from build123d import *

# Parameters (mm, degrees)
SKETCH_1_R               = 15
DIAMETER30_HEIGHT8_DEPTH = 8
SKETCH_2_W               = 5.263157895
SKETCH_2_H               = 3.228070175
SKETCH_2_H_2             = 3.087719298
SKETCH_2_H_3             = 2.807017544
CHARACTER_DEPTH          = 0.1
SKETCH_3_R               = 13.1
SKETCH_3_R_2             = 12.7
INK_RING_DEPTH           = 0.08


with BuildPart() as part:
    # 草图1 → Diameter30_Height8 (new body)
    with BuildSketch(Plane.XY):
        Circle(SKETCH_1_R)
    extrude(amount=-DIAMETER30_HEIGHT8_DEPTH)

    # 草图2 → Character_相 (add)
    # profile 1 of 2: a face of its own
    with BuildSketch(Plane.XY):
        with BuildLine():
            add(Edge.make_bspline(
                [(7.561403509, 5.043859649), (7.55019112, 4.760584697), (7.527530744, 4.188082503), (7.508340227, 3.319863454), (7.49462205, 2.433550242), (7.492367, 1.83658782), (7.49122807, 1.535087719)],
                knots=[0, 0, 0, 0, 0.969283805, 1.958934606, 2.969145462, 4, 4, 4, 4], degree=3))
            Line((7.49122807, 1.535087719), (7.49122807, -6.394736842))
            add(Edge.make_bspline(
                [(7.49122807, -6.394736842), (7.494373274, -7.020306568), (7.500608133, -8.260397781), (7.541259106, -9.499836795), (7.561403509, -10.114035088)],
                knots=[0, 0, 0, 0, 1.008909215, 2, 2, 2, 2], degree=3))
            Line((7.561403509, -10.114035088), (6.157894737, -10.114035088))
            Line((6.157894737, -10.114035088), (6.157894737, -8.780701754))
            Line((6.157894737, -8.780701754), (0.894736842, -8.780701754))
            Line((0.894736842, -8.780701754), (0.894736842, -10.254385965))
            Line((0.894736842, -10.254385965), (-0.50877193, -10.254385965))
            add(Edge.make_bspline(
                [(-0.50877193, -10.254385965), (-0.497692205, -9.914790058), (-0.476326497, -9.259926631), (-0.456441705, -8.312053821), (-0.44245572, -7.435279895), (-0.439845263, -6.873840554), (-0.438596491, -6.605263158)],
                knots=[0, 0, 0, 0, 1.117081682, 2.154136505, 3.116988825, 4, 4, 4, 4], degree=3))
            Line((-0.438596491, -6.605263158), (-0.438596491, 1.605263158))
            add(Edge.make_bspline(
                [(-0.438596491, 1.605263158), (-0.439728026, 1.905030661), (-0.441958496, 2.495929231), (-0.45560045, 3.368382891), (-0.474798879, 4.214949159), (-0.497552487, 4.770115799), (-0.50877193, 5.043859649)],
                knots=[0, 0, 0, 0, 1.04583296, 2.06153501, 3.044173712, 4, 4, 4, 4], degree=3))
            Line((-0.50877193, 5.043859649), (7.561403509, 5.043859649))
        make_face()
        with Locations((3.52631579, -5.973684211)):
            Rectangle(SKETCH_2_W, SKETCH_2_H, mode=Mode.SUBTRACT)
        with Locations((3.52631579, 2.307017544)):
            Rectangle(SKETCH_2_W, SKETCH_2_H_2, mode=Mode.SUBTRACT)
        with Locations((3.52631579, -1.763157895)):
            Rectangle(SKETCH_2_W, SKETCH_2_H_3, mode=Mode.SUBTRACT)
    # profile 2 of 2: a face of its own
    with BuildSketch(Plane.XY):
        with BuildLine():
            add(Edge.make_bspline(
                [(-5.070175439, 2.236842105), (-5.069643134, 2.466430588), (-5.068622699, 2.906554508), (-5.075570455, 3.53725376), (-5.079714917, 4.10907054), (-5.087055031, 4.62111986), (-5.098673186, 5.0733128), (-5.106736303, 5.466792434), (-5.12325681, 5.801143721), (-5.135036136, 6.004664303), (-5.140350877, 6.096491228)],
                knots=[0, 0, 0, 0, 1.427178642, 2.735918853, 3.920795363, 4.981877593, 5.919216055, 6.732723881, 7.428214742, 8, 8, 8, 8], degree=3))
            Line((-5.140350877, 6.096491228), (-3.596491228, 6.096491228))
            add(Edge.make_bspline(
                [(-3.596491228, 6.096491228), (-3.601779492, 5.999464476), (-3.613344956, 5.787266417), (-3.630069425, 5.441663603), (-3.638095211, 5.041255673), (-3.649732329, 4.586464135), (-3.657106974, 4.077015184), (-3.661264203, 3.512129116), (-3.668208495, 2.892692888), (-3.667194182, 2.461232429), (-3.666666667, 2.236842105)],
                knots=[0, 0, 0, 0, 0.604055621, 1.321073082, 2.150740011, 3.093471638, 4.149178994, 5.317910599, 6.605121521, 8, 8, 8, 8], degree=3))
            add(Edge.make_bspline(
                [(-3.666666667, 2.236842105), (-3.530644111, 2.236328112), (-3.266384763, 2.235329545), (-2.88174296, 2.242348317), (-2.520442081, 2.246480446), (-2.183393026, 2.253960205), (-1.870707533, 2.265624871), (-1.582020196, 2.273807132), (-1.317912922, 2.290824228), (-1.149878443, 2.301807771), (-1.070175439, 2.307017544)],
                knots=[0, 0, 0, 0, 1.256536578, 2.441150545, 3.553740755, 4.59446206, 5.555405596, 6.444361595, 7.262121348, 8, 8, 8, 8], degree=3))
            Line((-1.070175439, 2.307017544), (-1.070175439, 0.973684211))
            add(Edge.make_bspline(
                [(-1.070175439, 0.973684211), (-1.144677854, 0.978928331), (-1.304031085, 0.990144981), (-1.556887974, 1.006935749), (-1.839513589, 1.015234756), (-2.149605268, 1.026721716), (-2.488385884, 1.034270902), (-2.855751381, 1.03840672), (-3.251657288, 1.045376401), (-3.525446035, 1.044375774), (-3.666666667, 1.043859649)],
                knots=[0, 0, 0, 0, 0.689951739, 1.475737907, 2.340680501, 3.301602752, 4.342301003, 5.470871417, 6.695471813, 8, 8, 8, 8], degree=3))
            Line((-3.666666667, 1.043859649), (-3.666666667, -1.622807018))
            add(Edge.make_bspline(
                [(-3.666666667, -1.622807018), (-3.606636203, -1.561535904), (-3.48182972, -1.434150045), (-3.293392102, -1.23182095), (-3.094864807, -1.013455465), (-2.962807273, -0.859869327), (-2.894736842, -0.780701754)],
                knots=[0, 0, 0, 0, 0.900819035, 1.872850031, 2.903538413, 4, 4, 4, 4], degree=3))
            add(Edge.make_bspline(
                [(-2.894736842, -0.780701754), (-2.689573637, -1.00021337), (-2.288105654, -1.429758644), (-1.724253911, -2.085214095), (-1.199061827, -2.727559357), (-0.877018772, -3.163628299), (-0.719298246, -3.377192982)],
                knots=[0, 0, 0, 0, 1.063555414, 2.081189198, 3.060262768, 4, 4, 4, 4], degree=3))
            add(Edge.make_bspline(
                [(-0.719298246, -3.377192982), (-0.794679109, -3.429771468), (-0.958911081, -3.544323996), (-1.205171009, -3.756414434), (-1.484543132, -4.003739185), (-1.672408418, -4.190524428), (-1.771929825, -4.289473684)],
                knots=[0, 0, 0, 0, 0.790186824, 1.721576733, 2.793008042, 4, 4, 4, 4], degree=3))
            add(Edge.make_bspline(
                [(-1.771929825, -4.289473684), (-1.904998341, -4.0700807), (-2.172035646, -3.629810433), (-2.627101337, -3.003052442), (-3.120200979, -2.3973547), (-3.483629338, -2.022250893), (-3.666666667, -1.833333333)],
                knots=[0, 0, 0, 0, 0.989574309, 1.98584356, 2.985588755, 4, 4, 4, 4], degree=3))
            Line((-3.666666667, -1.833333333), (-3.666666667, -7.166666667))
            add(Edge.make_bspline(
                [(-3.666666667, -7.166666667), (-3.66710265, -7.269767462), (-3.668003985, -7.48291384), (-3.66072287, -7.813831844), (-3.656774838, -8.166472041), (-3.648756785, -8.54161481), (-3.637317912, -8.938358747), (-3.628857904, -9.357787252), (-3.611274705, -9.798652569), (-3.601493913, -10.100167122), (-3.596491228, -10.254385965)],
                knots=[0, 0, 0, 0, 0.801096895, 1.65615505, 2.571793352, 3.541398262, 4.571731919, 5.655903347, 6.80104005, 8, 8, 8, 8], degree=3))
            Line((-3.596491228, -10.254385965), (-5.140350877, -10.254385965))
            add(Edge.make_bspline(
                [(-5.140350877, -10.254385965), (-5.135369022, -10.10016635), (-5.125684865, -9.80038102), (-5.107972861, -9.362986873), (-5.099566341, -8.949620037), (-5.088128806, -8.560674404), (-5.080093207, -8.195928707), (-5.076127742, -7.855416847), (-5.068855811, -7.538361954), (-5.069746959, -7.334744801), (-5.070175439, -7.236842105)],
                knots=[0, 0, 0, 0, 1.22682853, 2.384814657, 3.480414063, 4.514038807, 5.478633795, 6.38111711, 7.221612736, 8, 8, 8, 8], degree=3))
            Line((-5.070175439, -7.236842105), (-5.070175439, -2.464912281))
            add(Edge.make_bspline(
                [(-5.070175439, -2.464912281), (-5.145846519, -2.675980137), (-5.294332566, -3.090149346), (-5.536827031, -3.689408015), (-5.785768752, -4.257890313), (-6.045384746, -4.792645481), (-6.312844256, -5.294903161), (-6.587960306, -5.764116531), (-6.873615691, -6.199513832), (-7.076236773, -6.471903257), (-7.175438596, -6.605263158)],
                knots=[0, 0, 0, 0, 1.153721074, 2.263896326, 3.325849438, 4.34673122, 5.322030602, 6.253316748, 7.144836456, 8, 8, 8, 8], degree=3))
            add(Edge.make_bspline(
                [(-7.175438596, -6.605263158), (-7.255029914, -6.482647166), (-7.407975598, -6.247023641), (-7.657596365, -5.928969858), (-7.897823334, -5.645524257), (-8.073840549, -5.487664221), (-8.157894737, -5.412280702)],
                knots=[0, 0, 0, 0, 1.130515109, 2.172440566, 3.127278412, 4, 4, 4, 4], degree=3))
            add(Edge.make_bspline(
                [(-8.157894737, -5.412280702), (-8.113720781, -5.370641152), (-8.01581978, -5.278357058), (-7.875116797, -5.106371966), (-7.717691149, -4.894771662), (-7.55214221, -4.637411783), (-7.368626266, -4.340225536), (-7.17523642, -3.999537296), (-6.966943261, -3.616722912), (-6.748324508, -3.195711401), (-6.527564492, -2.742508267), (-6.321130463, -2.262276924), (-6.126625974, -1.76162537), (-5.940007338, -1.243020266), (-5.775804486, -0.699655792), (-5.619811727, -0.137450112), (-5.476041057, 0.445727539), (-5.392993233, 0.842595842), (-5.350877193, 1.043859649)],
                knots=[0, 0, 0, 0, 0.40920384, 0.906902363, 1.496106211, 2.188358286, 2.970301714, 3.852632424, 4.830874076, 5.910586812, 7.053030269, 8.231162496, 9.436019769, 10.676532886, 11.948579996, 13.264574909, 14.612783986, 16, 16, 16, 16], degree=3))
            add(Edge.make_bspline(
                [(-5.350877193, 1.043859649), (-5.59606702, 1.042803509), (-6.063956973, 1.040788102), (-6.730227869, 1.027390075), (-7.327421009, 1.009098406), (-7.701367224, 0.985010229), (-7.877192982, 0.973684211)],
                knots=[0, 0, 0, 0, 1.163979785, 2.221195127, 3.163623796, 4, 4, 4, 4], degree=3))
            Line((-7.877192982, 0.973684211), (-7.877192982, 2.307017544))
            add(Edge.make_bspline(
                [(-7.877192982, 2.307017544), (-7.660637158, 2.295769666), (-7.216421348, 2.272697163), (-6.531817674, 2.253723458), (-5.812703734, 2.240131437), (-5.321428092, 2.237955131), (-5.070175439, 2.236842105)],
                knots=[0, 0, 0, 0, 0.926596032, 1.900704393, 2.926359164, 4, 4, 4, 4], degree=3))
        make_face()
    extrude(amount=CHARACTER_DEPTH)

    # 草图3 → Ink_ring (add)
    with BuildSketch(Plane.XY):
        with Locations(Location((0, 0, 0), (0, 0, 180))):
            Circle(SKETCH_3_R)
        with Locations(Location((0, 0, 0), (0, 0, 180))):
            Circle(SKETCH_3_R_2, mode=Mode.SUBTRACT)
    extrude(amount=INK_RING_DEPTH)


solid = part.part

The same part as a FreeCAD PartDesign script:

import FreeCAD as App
import Part
import Sketcher
from FreeCAD import Vector
Q = App.Units.Quantity


def add_polygon(sketch, points):
    """Adds a closed chain of lines whose ends are joined by coincident constraints."""
    first, n = sketch.GeometryCount, len(points)
    for a, b in zip(points, points[1:] + points[:1]):
        sketch.addGeometry(Part.LineSegment(App.Vector(*a, 0), App.Vector(*b, 0)), False)
    for i in range(n):
        sketch.addConstraint(Sketcher.Constraint("Coincident", first + i, 2, first + (i + 1) % n, 1))

doc = App.newDocument("Part")
body = doc.addObject("PartDesign::Body", "Body")

# Sketch on XY plane
sketch1 = body.newObject("Sketcher::SketchObject", "Sketch")
sketch1.AttachmentSupport = (doc.getObject("XY_Plane"), [""])
sketch1.MapMode = "FlatFace"
sketch1.addGeometry(Part.Circle(Vector(0, 0, 0), Vector(0, 0, 1), 15), False)
sketch1.addConstraint(Sketcher.Constraint("Coincident", 0, 3, -1, 1))
sketch1.addConstraint(Sketcher.Constraint("Diameter", 0, Q("30 mm")))
pad1 = body.newObject("PartDesign::Pad", "Pad")
pad1.Profile = sketch1
pad1.Length = 8
pad1.Reversed = True

# Sketch on XY plane
sketch2 = body.newObject("Sketcher::SketchObject", "Sketch001")
sketch2.AttachmentSupport = (doc.getObject("XY_Plane"), [""])
sketch2.MapMode = "FlatFace"
sketch2.addGeometry(Part.BSplineCurve([Vector(7.561404, 5.04386, 0), Vector(7.550191, 4.760585, 0), Vector(7.527531, 4.188083, 0), Vector(7.50834, 3.319863, 0), Vector(7.494622, 2.43355, 0), Vector(7.492367, 1.836588, 0), Vector(7.491228, 1.535088, 0)], [4, 1, 1, 1, 4], [0, 0.969283805, 1.958934606, 2.969145462, 4], False, 3, [1, 1, 1, 1, 1, 1, 1], False), False)  # 0
sketch2.addGeometry(Part.LineSegment(Vector(7.561404, 5.04386, 0), Vector(-0.508772, 5.04386, 0)), False)  # 1
sketch2.addGeometry(Part.BSplineCurve([Vector(-0.438596, 1.605263, 0), Vector(-0.439728, 1.905031, 0), Vector(-0.441958, 2.495929, 0), Vector(-0.4556, 3.368383, 0), Vector(-0.474799, 4.214949, 0), Vector(-0.497552, 4.770116, 0), Vector(-0.508772, 5.04386, 0)], [4, 1, 1, 1, 4], [0, 1.04583296, 2.06153501, 3.044173712, 4], False, 3, [1, 1, 1, 1, 1, 1, 1], False), False)  # 2
sketch2.addGeometry(Part.LineSegment(Vector(-0.438596, 1.605263, 0), Vector(-0.438596, -6.605263, 0)), False)  # 3
sketch2.addGeometry(Part.BSplineCurve([Vector(-0.508772, -10.254386, 0), Vector(-0.497692, -9.91479, 0), Vector(-0.476326, -9.259927, 0), Vector(-0.456442, -8.312054, 0), Vector(-0.442456, -7.43528, 0), Vector(-0.439845, -6.873841, 0), Vector(-0.438596, -6.605263, 0)], [4, 1, 1, 1, 4], [0, 1.117081682, 2.154136505, 3.116988825, 4], False, 3, [1, 1, 1, 1, 1, 1, 1], False), False)  # 4
sketch2.addGeometry(Part.LineSegment(Vector(-0.508772, -10.254386, 0), Vector(0.894737, -10.254386, 0)), False)  # 5
sketch2.addGeometry(Part.LineSegment(Vector(0.894737, -10.254386, 0), Vector(0.894737, -8.780702, 0)), False)  # 6
sketch2.addGeometry(Part.LineSegment(Vector(0.894737, -8.780702, 0), Vector(6.157895, -8.780702, 0)), False)  # 7
sketch2.addGeometry(Part.LineSegment(Vector(6.157895, -8.780702, 0), Vector(6.157895, -10.114035, 0)), False)  # 8
sketch2.addGeometry(Part.LineSegment(Vector(6.157895, -10.114035, 0), Vector(7.561404, -10.114035, 0)), False)  # 9
sketch2.addGeometry(Part.BSplineCurve([Vector(7.491228, -6.394737, 0), Vector(7.494373, -7.020307, 0), Vector(7.500608, -8.260398, 0), Vector(7.541259, -9.499837, 0), Vector(7.561404, -10.114035, 0)], [4, 1, 4], [0, 1.008909215, 2], False, 3, [1, 1, 1, 1, 1], False), False)  # 10
sketch2.addGeometry(Part.LineSegment(Vector(7.491228, -6.394737, 0), Vector(7.491228, 1.535088, 0)), False)  # 11
add_polygon(sketch2, [(0.894737, -7.587719), (0.894737, -4.359649), (6.157895, -4.359649), (6.157895, -7.587719)])  # lines 12-15
add_polygon(sketch2, [(0.894737, -3.166667), (0.894737, -0.359649), (6.157895, -0.359649), (6.157895, -3.166667)])  # lines 16-19
add_polygon(sketch2, [(0.894737, 0.763158), (0.894737, 3.850877), (6.157895, 3.850877), (6.157895, 0.763158)])  # lines 20-23
sketch2.addGeometry(Part.BSplineCurve([Vector(-5.070175, 2.236842, 0), Vector(-5.069643, 2.466431, 0), Vector(-5.068623, 2.906555, 0), Vector(-5.07557, 3.537254, 0), Vector(-5.079715, 4.109071, 0), Vector(-5.087055, 4.62112, 0), Vector(-5.098673, 5.073313, 0), Vector(-5.106736, 5.466792, 0), Vector(-5.123257, 5.801144, 0), Vector(-5.135036, 6.004664, 0), Vector(-5.140351, 6.096491, 0)], [4, 1, 1, 1, 1, 1, 1, 1, 4], [0, 1.427178642, 2.735918853, 3.920795363, 4.981877593, 5.919216055, 6.732723881, 7.428214742, 8], False, 3, [1, 1, 1, 1, 1, 1, 1, 1, 1, 1, 1], False), False)  # 24
sketch2.addGeometry(Part.BSplineCurve([Vector(-7.877193, 2.307018, 0), Vector(-7.660637, 2.29577, 0), Vector(-7.216421, 2.272697, 0), Vector(-6.531818, 2.253723, 0), Vector(-5.812704, 2.240131, 0), Vector(-5.321428, 2.237955, 0), Vector(-5.070175, 2.236842, 0)], [4, 1, 1, 1, 4], [0, 0.926596032, 1.900704393, 2.926359164, 4], False, 3, [1, 1, 1, 1, 1, 1, 1], False), False)  # 25
sketch2.addGeometry(Part.LineSegment(Vector(-7.877193, 2.307018, 0), Vector(-7.877193, 0.973684, 0)), False)  # 26
sketch2.addGeometry(Part.BSplineCurve([Vector(-5.350877, 1.04386, 0), Vector(-5.596067, 1.042804, 0), Vector(-6.063957, 1.040788, 0), Vector(-6.730228, 1.02739, 0), Vector(-7.327421, 1.009098, 0), Vector(-7.701367, 0.98501, 0), Vector(-7.877193, 0.973684, 0)], [4, 1, 1, 1, 4], [0, 1.163979785, 2.221195127, 3.163623796, 4], False, 3, [1, 1, 1, 1, 1, 1, 1], False), False)  # 27
sketch2.addGeometry(Part.BSplineCurve([Vector(-8.157895, -5.412281, 0), Vector(-8.113721, -5.370641, 0), Vector(-8.01582, -5.278357, 0), Vector(-7.875117, -5.106372, 0), Vector(-7.717691, -4.894772, 0), Vector(-7.552142, -4.637412, 0), Vector(-7.368626, -4.340226, 0), Vector(-7.175236, -3.999537, 0), Vector(-6.966943, -3.616723, 0), Vector(-6.748325, -3.195711, 0), Vector(-6.527564, -2.742508, 0), Vector(-6.32113, -2.262277, 0), Vector(-6.126626, -1.761625, 0), Vector(-5.940007, -1.24302, 0), Vector(-5.775804, -0.699656, 0), Vector(-5.619812, -0.13745, 0), Vector(-5.476041, 0.445728, 0), Vector(-5.392993, 0.842596, 0), Vector(-5.350877, 1.04386, 0)], [4, 1, 1, 1, 1, 1, 1, 1, 1, 1, 1, 1, 1, 1, 1, 1, 4], [0, 0.40920384, 0.906902363, 1.496106211, 2.188358286, 2.970301714, 3.852632424, 4.830874076, 5.910586812, 7.053030269, 8.231162496, 9.436019769, 10.676532886, 11.948579996, 13.264574909, 14.612783986, 16], False, 3, [1, 1, 1, 1, 1, 1, 1, 1, 1, 1, 1, 1, 1, 1, 1, 1, 1, 1, 1], False), False)  # 28
sketch2.addGeometry(Part.BSplineCurve([Vector(-7.175439, -6.605263, 0), Vector(-7.25503, -6.482647, 0), Vector(-7.407976, -6.247024, 0), Vector(-7.657596, -5.92897, 0), Vector(-7.897823, -5.645524, 0), Vector(-8.073841, -5.487664, 0), Vector(-8.157895, -5.412281, 0)], [4, 1, 1, 1, 4], [0, 1.130515109, 2.172440566, 3.127278412, 4], False, 3, [1, 1, 1, 1, 1, 1, 1], False), False)  # 29
sketch2.addGeometry(Part.BSplineCurve([Vector(-5.070175, -2.464912, 0), Vector(-5.145847, -2.67598, 0), Vector(-5.294333, -3.090149, 0), Vector(-5.536827, -3.689408, 0), Vector(-5.785769, -4.25789, 0), Vector(-6.045385, -4.792645, 0), Vector(-6.312844, -5.294903, 0), Vector(-6.58796, -5.764117, 0), Vector(-6.873616, -6.199514, 0), Vector(-7.076237, -6.471903, 0), Vector(-7.175439, -6.605263, 0)], [4, 1, 1, 1, 1, 1, 1, 1, 4], [0, 1.153721074, 2.263896326, 3.325849438, 4.34673122, 5.322030602, 6.253316748, 7.144836456, 8], False, 3, [1, 1, 1, 1, 1, 1, 1, 1, 1, 1, 1], False), False)  # 30
sketch2.addGeometry(Part.LineSegment(Vector(-5.070175, -2.464912, 0), Vector(-5.070175, -7.236842, 0)), False)  # 31
sketch2.addGeometry(Part.BSplineCurve([Vector(-5.140351, -10.254386, 0), Vector(-5.135369, -10.100166, 0), Vector(-5.125685, -9.800381, 0), Vector(-5.107973, -9.362987, 0), Vector(-5.099566, -8.94962, 0), Vector(-5.088129, -8.560674, 0), Vector(-5.080093, -8.195929, 0), Vector(-5.076128, -7.855417, 0), Vector(-5.068856, -7.538362, 0), Vector(-5.069747, -7.334745, 0), Vector(-5.070175, -7.236842, 0)], [4, 1, 1, 1, 1, 1, 1, 1, 4], [0, 1.22682853, 2.384814657, 3.480414063, 4.514038807, 5.478633795, 6.38111711, 7.221612736, 8], False, 3, [1, 1, 1, 1, 1, 1, 1, 1, 1, 1, 1], False), False)  # 32
sketch2.addGeometry(Part.LineSegment(Vector(-5.140351, -10.254386, 0), Vector(-3.596491, -10.254386, 0)), False)  # 33
sketch2.addGeometry(Part.BSplineCurve([Vector(-3.666667, -7.166667, 0), Vector(-3.667103, -7.269767, 0), Vector(-3.668004, -7.482914, 0), Vector(-3.660723, -7.813832, 0), Vector(-3.656775, -8.166472, 0), Vector(-3.648757, -8.541615, 0), Vector(-3.637318, -8.938359, 0), Vector(-3.628858, -9.357787, 0), Vector(-3.611275, -9.798653, 0), Vector(-3.601494, -10.100167, 0), Vector(-3.596491, -10.254386, 0)], [4, 1, 1, 1, 1, 1, 1, 1, 4], [0, 0.801096895, 1.65615505, 2.571793352, 3.541398262, 4.571731919, 5.655903347, 6.80104005, 8], False, 3, [1, 1, 1, 1, 1, 1, 1, 1, 1, 1, 1], False), False)  # 34
sketch2.addGeometry(Part.LineSegment(Vector(-3.666667, -7.166667, 0), Vector(-3.666667, -1.833333, 0)), False)  # 35
sketch2.addGeometry(Part.BSplineCurve([Vector(-1.77193, -4.289474, 0), Vector(-1.904998, -4.070081, 0), Vector(-2.172036, -3.62981, 0), Vector(-2.627101, -3.003052, 0), Vector(-3.120201, -2.397355, 0), Vector(-3.483629, -2.022251, 0), Vector(-3.666667, -1.833333, 0)], [4, 1, 1, 1, 4], [0, 0.989574309, 1.98584356, 2.985588755, 4], False, 3, [1, 1, 1, 1, 1, 1, 1], False), False)  # 36
sketch2.addGeometry(Part.BSplineCurve([Vector(-0.719298, -3.377193, 0), Vector(-0.794679, -3.429771, 0), Vector(-0.958911, -3.544324, 0), Vector(-1.205171, -3.756414, 0), Vector(-1.484543, -4.003739, 0), Vector(-1.672408, -4.190524, 0), Vector(-1.77193, -4.289474, 0)], [4, 1, 1, 1, 4], [0, 0.790186824, 1.721576733, 2.793008042, 4], False, 3, [1, 1, 1, 1, 1, 1, 1], False), False)  # 37
sketch2.addGeometry(Part.BSplineCurve([Vector(-2.894737, -0.780702, 0), Vector(-2.689574, -1.000213, 0), Vector(-2.288106, -1.429759, 0), Vector(-1.724254, -2.085214, 0), Vector(-1.199062, -2.727559, 0), Vector(-0.877019, -3.163628, 0), Vector(-0.719298, -3.377193, 0)], [4, 1, 1, 1, 4], [0, 1.063555414, 2.081189198, 3.060262768, 4], False, 3, [1, 1, 1, 1, 1, 1, 1], False), False)  # 38
sketch2.addGeometry(Part.BSplineCurve([Vector(-3.666667, -1.622807, 0), Vector(-3.606636, -1.561536, 0), Vector(-3.48183, -1.43415, 0), Vector(-3.293392, -1.231821, 0), Vector(-3.094865, -1.013455, 0), Vector(-2.962807, -0.859869, 0), Vector(-2.894737, -0.780702, 0)], [4, 1, 1, 1, 4], [0, 0.900819035, 1.872850031, 2.903538413, 4], False, 3, [1, 1, 1, 1, 1, 1, 1], False), False)  # 39
sketch2.addGeometry(Part.LineSegment(Vector(-3.666667, -1.622807, 0), Vector(-3.666667, 1.04386, 0)), False)  # 40
sketch2.addGeometry(Part.BSplineCurve([Vector(-1.070175, 0.973684, 0), Vector(-1.144678, 0.978928, 0), Vector(-1.304031, 0.990145, 0), Vector(-1.556888, 1.006936, 0), Vector(-1.839514, 1.015235, 0), Vector(-2.149605, 1.026722, 0), Vector(-2.488386, 1.034271, 0), Vector(-2.855751, 1.038407, 0), Vector(-3.251657, 1.045376, 0), Vector(-3.525446, 1.044376, 0), Vector(-3.666667, 1.04386, 0)], [4, 1, 1, 1, 1, 1, 1, 1, 4], [0, 0.689951739, 1.475737907, 2.340680501, 3.301602752, 4.342301003, 5.470871417, 6.695471813, 8], False, 3, [1, 1, 1, 1, 1, 1, 1, 1, 1, 1, 1], False), False)  # 41
sketch2.addGeometry(Part.LineSegment(Vector(-1.070175, 0.973684, 0), Vector(-1.070175, 2.307018, 0)), False)  # 42
sketch2.addGeometry(Part.BSplineCurve([Vector(-3.666667, 2.236842, 0), Vector(-3.530644, 2.236328, 0), Vector(-3.266385, 2.23533, 0), Vector(-2.881743, 2.242348, 0), Vector(-2.520442, 2.24648, 0), Vector(-2.183393, 2.25396, 0), Vector(-1.870708, 2.265625, 0), Vector(-1.58202, 2.273807, 0), Vector(-1.317913, 2.290824, 0), Vector(-1.149878, 2.301808, 0), Vector(-1.070175, 2.307018, 0)], [4, 1, 1, 1, 1, 1, 1, 1, 4], [0, 1.256536578, 2.441150545, 3.553740755, 4.59446206, 5.555405596, 6.444361595, 7.262121348, 8], False, 3, [1, 1, 1, 1, 1, 1, 1, 1, 1, 1, 1], False), False)  # 43
sketch2.addGeometry(Part.BSplineCurve([Vector(-3.596491, 6.096491, 0), Vector(-3.601779, 5.999464, 0), Vector(-3.613345, 5.787266, 0), Vector(-3.630069, 5.441664, 0), Vector(-3.638095, 5.041256, 0), Vector(-3.649732, 4.586464, 0), Vector(-3.657107, 4.077015, 0), Vector(-3.661264, 3.512129, 0), Vector(-3.668208, 2.892693, 0), Vector(-3.667194, 2.461232, 0), Vector(-3.666667, 2.236842, 0)], [4, 1, 1, 1, 1, 1, 1, 1, 4], [0, 0.604055621, 1.321073082, 2.150740011, 3.093471638, 4.149178994, 5.317910599, 6.605121521, 8], False, 3, [1, 1, 1, 1, 1, 1, 1, 1, 1, 1, 1], False), False)  # 44
sketch2.addGeometry(Part.LineSegment(Vector(-3.596491, 6.096491, 0), Vector(-5.140351, 6.096491, 0)), False)  # 45
sketch2.addConstraint(Sketcher.Constraint("Block", 0))
sketch2.addConstraint(Sketcher.Constraint("Block", 2))
sketch2.addConstraint(Sketcher.Constraint("Block", 4))
sketch2.addConstraint(Sketcher.Constraint("Block", 10))
sketch2.addConstraint(Sketcher.Constraint("Block", 24))
sketch2.addConstraint(Sketcher.Constraint("Block", 25))
sketch2.addConstraint(Sketcher.Constraint("Block", 27))
sketch2.addConstraint(Sketcher.Constraint("Block", 28))
sketch2.addConstraint(Sketcher.Constraint("Block", 29))
sketch2.addConstraint(Sketcher.Constraint("Block", 30))
sketch2.addConstraint(Sketcher.Constraint("Block", 32))
sketch2.addConstraint(Sketcher.Constraint("Block", 34))
sketch2.addConstraint(Sketcher.Constraint("Block", 36))
sketch2.addConstraint(Sketcher.Constraint("Block", 37))
sketch2.addConstraint(Sketcher.Constraint("Block", 38))
sketch2.addConstraint(Sketcher.Constraint("Block", 39))
sketch2.addConstraint(Sketcher.Constraint("Block", 41))
sketch2.addConstraint(Sketcher.Constraint("Block", 43))
sketch2.addConstraint(Sketcher.Constraint("Block", 44))
sketch2.addConstraint(Sketcher.Constraint("Coincident", 0, 1, 1, 1))
sketch2.addConstraint(Sketcher.Constraint("Coincident", 1, 2, 2, 2))
sketch2.addConstraint(Sketcher.Constraint("Coincident", 2, 1, 3, 1))
sketch2.addConstraint(Sketcher.Constraint("Coincident", 3, 2, 4, 2))
sketch2.addConstraint(Sketcher.Constraint("Coincident", 4, 1, 5, 1))
sketch2.addConstraint(Sketcher.Constraint("Coincident", 5, 2, 6, 1))
sketch2.addConstraint(Sketcher.Constraint("Coincident", 6, 2, 7, 1))
sketch2.addConstraint(Sketcher.Constraint("Coincident", 7, 2, 8, 1))
sketch2.addConstraint(Sketcher.Constraint("Coincident", 8, 2, 9, 1))
sketch2.addConstraint(Sketcher.Constraint("Coincident", 9, 2, 10, 2))
sketch2.addConstraint(Sketcher.Constraint("Coincident", 10, 1, 11, 1))
sketch2.addConstraint(Sketcher.Constraint("Coincident", 11, 2, 0, 2))
sketch2.addConstraint(Sketcher.Constraint("Coincident", 25, 1, 26, 1))
sketch2.addConstraint(Sketcher.Constraint("Coincident", 26, 2, 27, 2))
sketch2.addConstraint(Sketcher.Constraint("Coincident", 30, 1, 31, 1))
sketch2.addConstraint(Sketcher.Constraint("Coincident", 31, 2, 32, 2))
sketch2.addConstraint(Sketcher.Constraint("Coincident", 32, 1, 33, 1))
sketch2.addConstraint(Sketcher.Constraint("Coincident", 33, 2, 34, 2))
sketch2.addConstraint(Sketcher.Constraint("Coincident", 34, 1, 35, 1))
sketch2.addConstraint(Sketcher.Constraint("Coincident", 35, 2, 36, 2))
sketch2.addConstraint(Sketcher.Constraint("Coincident", 39, 1, 40, 1))
sketch2.addConstraint(Sketcher.Constraint("Coincident", 40, 2, 41, 2))
sketch2.addConstraint(Sketcher.Constraint("Coincident", 41, 1, 42, 1))
sketch2.addConstraint(Sketcher.Constraint("Coincident", 42, 2, 43, 2))
sketch2.addConstraint(Sketcher.Constraint("Coincident", 44, 1, 45, 1))
sketch2.addConstraint(Sketcher.Constraint("Coincident", 45, 2, 24, 2))
sketch2.addConstraint(Sketcher.Constraint("Horizontal", 5))
sketch2.addConstraint(Sketcher.Constraint("Vertical", 6))
sketch2.addConstraint(Sketcher.Constraint("Horizontal", 7))
sketch2.addConstraint(Sketcher.Constraint("Vertical", 8))
sketch2.addConstraint(Sketcher.Constraint("Horizontal", 9))
sketch2.addConstraint(Sketcher.Constraint("Vertical", 12))
sketch2.addConstraint(Sketcher.Constraint("Horizontal", 13))
sketch2.addConstraint(Sketcher.Constraint("Vertical", 14))
sketch2.addConstraint(Sketcher.Constraint("Horizontal", 15))
sketch2.addConstraint(Sketcher.Constraint("Vertical", 16))
sketch2.addConstraint(Sketcher.Constraint("Horizontal", 17))
sketch2.addConstraint(Sketcher.Constraint("Vertical", 18))
sketch2.addConstraint(Sketcher.Constraint("Horizontal", 19))
sketch2.addConstraint(Sketcher.Constraint("Vertical", 20))
sketch2.addConstraint(Sketcher.Constraint("Horizontal", 21))
sketch2.addConstraint(Sketcher.Constraint("Vertical", 22))
sketch2.addConstraint(Sketcher.Constraint("Horizontal", 23))
sketch2.addConstraint(Sketcher.Constraint("DistanceY", 12, 2, 16, 2, Q("4 mm")))
sketch2.addConstraint(Sketcher.Constraint("DistanceX", 5, 1, 5, 2, Q("1.403509 mm")))
sketch2.addConstraint(Sketcher.Constraint("DistanceX", 9, 1, 9, 2, Q("1.403509 mm")))
sketch2.addConstraint(Sketcher.Constraint("DistanceY", 12, 1, 12, 2, Q("3.22807 mm")))
sketch2.addConstraint(Sketcher.Constraint("DistanceY", 20, 1, 20, 2, Q("3.087719 mm")))
sketch2.addConstraint(Sketcher.Constraint("DistanceY", 6, 2, -1, 1, Q("8.780702 mm")))
sketch2.addConstraint(Sketcher.Constraint("DistanceY", 23, 2, 1, 2, Q("4.280702 mm")))
sketch2.addConstraint(Sketcher.Constraint("DistanceX", 13, 1, 13, 2, Q("5.263158 mm")))
sketch2.addConstraint(Sketcher.Constraint("DistanceX", 17, 1, 17, 2, Q("5.263158 mm")))
sketch2.addConstraint(Sketcher.Constraint("DistanceX", 21, 1, 21, 2, Q("5.263158 mm")))
sketch2.addConstraint(Sketcher.Constraint("DistanceY", 16, 1, 16, 2, Q("2.807018 mm")))
sketch2.addConstraint(Sketcher.Constraint("DistanceY", 12, 2, -1, 1, Q("4.359649 mm")))
sketch2.addConstraint(Sketcher.Constraint("DistanceX", 13, 2, 9, 2, Q("1.403509 mm")))
sketch2.addConstraint(Sketcher.Constraint("DistanceX", 1, 2, 16, 2, Q("1.403509 mm")))
sketch2.addConstraint(Sketcher.Constraint("DistanceX", 1, 2, 20, 2, Q("1.403509 mm")))
pad2 = body.newObject("PartDesign::Pad", "Pad001")
pad2.Profile = sketch2
pad2.Length = 0.1

# Sketch on XY plane
sketch3 = body.newObject("Sketcher::SketchObject", "Sketch002")
sketch3.AttachmentSupport = (doc.getObject("XY_Plane"), [""])
sketch3.MapMode = "FlatFace"
sketch3.addGeometry(Part.Circle(Vector(0, 0, 0), Vector(0, 0, 1), 13), False)
sketch3.addGeometry(Part.Circle(Vector(0, 0, 0), Vector(0, 0, 1), 13), False)
sketch3.addConstraint(Sketcher.Constraint("Coincident", 0, 3, -1, 1))
sketch3.addConstraint(Sketcher.Constraint("Coincident", 1, 3, -1, 1))
sketch3.addConstraint(Sketcher.Constraint("Diameter", 0, Q("26.2 mm")))
sketch3.addConstraint(Sketcher.Constraint("Diameter", 1, Q("25.4 mm")))
pad3 = body.newObject("PartDesign::Pad", "Pad002")
pad3.Profile = sketch3
pad3.Length = 0.08

doc.recompute()
